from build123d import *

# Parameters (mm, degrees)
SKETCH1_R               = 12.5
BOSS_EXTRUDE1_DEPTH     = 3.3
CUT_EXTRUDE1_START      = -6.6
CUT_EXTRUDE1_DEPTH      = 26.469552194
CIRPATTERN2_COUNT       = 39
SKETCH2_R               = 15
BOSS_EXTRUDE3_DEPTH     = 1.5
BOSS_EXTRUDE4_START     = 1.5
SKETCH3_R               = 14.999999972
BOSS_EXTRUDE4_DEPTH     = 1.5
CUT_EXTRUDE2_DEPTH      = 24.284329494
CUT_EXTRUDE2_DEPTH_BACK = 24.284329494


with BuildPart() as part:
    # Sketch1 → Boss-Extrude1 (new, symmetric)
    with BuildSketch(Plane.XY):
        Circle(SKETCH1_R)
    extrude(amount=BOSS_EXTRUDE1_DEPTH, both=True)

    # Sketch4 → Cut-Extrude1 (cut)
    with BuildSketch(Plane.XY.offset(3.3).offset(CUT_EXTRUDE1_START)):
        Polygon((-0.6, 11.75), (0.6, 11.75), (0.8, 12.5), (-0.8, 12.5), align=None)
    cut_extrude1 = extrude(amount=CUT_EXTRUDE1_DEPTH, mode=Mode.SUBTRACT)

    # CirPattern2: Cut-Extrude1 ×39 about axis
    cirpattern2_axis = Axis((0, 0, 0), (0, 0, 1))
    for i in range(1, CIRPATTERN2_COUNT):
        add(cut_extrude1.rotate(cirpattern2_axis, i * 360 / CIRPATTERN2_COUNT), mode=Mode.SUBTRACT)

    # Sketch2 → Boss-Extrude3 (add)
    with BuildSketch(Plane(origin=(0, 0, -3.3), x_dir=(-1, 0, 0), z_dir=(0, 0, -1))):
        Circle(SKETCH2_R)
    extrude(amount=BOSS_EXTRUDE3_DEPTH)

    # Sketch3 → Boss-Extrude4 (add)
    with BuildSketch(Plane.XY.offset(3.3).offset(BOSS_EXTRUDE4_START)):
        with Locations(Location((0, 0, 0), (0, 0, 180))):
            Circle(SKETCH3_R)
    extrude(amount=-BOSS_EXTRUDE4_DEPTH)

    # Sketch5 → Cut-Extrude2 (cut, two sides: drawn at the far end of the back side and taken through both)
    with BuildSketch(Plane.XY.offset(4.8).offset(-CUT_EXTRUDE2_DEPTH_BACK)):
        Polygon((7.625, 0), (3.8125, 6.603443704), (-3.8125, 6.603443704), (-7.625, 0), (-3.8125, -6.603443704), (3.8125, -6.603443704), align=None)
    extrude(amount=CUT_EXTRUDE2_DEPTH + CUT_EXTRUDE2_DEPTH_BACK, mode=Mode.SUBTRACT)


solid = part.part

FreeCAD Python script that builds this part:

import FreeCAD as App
import Part
import Sketcher

V = App.Vector
Q = App.Units.Quantity


def add_polygon(sketch, points):
    """Adds a closed chain of lines whose ends are joined by coincident constraints."""
    first, n = sketch.GeometryCount, len(points)
    for a, b in zip(points, points[1:] + points[:1]):
        sketch.addGeometry(Part.LineSegment(App.Vector(*a, 0), App.Vector(*b, 0)), False)
    for i in range(n):
        sketch.addConstraint(Sketcher.Constraint("Coincident", first + i, 2, first + (i + 1) % n, 1))

doc = App.newDocument("Part")
body = doc.addObject("PartDesign::Body", "Body")

sketch1 = body.newObject("Sketcher::SketchObject", "Sketch")
sketch1.AttachmentSupport = (doc.getObject("XY_Plane"), [""])
sketch1.MapMode = "FlatFace"
sketch1.addGeometry(Part.Circle(V(0, 0, 0), V(0, 0, 1), 12.5), False)
sketch1.addConstraint([
    Sketcher.Constraint("Coincident", 0, 3, -1, 1),
    Sketcher.Constraint("Diameter", 0, Q("25 mm")),
])
pad1 = body.newObject("PartDesign::Pad", "Pad")
pad1.Profile = sketch1
pad1.Length = 6.6
pad1.Midplane = True

sketch2 = body.newObject("Sketcher::SketchObject", "Sketch001")
sketch2.AttachmentSupport = (doc.getObject("XY_Plane"), [""])
sketch2.MapMode = "FlatFace"
sketch2.AttachmentOffset = App.Placement(V(0, 0, -3.3), App.Rotation())
add_polygon(sketch2, [(-0.6, 11.75), (0.6, 11.75), (0.8, 12.5), (-0.8, 12.5)])
sketch2.addConstraint([
    Sketcher.Constraint("Horizontal", 0),
    Sketcher.Constraint("Horizontal", 2),
    Sketcher.Constraint("Equal", 1, 3),
    Sketcher.Constraint("DistanceX", 0, 1, 0, 2, Q("1.2 mm")),
    Sketcher.Constraint("DistanceX", 2, 2, 2, 1, Q("1.6 mm")),
    Sketcher.Constraint("DistanceX", -1, 1, 0, 2, Q("0.6 mm")),
    Sketcher.Constraint("DistanceY", -1, 1, 1, 2, Q("12.5 mm")),
    Sketcher.Constraint("DistanceY", -1, 1, 0, 2, Q("11.75 mm")),
])
pocket1 = body.newObject("PartDesign::Pocket", "Pocket")
pocket1.Profile = sketch2
pocket1.Length = 26.469552
pocket1.Reversed = True
doc.recompute()

polarpattern = body.newObject("PartDesign::PolarPattern", "PolarPattern")
polarpattern.Originals = [pocket1]
polarpattern.Axis = (doc.getObject("Z_Axis"), [""])
polarpattern.Angle = 360
polarpattern.Occurrences = 39
body.Tip = polarpattern

sketch3 = body.newObject("Sketcher::SketchObject", "Sketch002")
sketch3.AttachmentSupport = (doc.getObject("XY_Plane"), [""])
sketch3.MapMode = "FlatFace"
sketch3.AttachmentOffset = App.Placement(V(0, 0, -3.3), App.Rotation())
sketch3.addGeometry(Part.Circle(V(0, 0, 0), V(0, 0, 1), 15), False)
sketch3.addConstraint([
    Sketcher.Constraint("Coincident", 0, 3, -1, 1),
    Sketcher.Constraint("Diameter", 0, Q("30 mm")),
])
pad2 = body.newObject("PartDesign::Pad", "Pad001")
pad2.Profile = sketch3
pad2.Length = 1.5
pad2.Reversed = True

sketch4 = body.newObject("Sketcher::SketchObject", "Sketch003")
sketch4.AttachmentSupport = (doc.getObject("XY_Plane"), [""])
sketch4.MapMode = "FlatFace"
sketch4.AttachmentOffset = App.Placement(V(0, 0, 4.8), App.Rotation())
sketch4.addGeometry(Part.Circle(V(0, 0, 0), V(0, 0, 1), 15), False)
sketch4.addConstraint([
    Sketcher.Constraint("Coincident", 0, 3, -1, 1),
    Sketcher.Constraint("Diameter", 0, Q("30 mm")),
])
pad3 = body.newObject("PartDesign::Pad", "Pad002")
pad3.Profile = sketch4
pad3.Length = 1.5
pad3.Reversed = True

sketch5 = body.newObject("Sketcher::SketchObject", "Sketch004")
sketch5.AttachmentSupport = (doc.getObject("XY_Plane"), [""])
sketch5.MapMode = "FlatFace"
sketch5.AttachmentOffset = App.Placement(V(0, 0, 4.8), App.Rotation())
add_polygon(sketch5, [(7.625, 0), (3.8125, 6.603444), (-3.8125, 6.603444), (-7.625, 0), (-3.8125, -6.603444), (3.8125, -6.603444)])
sketch5.addConstraint([
    Sketcher.Constraint("Horizontal", 1),
    Sketcher.Constraint("Horizontal", 4),
    Sketcher.Constraint("Symmetric", 0, 2, 3, 2, -1, 1),
    Sketcher.Constraint("Symmetric", 2, 2, 5, 2, -1, 1),
    Sketcher.Constraint("PointOnObject", 2, 2, -1),
    Sketcher.Constraint("Parallel", 2, 5),
    Sketcher.Constraint("Vertical", 1, 2, 3, 2),
    Sketcher.Constraint("Angle", 0, Q("120 deg")),
    Sketcher.Constraint("DistanceX", 1, 2, 1, 1, Q("7.625 mm")),
    Sketcher.Constraint("DistanceX", 2, 2, 5, 2, Q("15.25 mm")),
])
pocket2 = body.newObject("PartDesign::Pocket", "Pocket001")
pocket2.Profile = sketch5
pocket2.Type = "ThroughAll"
pocket2.Midplane = True

doc.recompute()
